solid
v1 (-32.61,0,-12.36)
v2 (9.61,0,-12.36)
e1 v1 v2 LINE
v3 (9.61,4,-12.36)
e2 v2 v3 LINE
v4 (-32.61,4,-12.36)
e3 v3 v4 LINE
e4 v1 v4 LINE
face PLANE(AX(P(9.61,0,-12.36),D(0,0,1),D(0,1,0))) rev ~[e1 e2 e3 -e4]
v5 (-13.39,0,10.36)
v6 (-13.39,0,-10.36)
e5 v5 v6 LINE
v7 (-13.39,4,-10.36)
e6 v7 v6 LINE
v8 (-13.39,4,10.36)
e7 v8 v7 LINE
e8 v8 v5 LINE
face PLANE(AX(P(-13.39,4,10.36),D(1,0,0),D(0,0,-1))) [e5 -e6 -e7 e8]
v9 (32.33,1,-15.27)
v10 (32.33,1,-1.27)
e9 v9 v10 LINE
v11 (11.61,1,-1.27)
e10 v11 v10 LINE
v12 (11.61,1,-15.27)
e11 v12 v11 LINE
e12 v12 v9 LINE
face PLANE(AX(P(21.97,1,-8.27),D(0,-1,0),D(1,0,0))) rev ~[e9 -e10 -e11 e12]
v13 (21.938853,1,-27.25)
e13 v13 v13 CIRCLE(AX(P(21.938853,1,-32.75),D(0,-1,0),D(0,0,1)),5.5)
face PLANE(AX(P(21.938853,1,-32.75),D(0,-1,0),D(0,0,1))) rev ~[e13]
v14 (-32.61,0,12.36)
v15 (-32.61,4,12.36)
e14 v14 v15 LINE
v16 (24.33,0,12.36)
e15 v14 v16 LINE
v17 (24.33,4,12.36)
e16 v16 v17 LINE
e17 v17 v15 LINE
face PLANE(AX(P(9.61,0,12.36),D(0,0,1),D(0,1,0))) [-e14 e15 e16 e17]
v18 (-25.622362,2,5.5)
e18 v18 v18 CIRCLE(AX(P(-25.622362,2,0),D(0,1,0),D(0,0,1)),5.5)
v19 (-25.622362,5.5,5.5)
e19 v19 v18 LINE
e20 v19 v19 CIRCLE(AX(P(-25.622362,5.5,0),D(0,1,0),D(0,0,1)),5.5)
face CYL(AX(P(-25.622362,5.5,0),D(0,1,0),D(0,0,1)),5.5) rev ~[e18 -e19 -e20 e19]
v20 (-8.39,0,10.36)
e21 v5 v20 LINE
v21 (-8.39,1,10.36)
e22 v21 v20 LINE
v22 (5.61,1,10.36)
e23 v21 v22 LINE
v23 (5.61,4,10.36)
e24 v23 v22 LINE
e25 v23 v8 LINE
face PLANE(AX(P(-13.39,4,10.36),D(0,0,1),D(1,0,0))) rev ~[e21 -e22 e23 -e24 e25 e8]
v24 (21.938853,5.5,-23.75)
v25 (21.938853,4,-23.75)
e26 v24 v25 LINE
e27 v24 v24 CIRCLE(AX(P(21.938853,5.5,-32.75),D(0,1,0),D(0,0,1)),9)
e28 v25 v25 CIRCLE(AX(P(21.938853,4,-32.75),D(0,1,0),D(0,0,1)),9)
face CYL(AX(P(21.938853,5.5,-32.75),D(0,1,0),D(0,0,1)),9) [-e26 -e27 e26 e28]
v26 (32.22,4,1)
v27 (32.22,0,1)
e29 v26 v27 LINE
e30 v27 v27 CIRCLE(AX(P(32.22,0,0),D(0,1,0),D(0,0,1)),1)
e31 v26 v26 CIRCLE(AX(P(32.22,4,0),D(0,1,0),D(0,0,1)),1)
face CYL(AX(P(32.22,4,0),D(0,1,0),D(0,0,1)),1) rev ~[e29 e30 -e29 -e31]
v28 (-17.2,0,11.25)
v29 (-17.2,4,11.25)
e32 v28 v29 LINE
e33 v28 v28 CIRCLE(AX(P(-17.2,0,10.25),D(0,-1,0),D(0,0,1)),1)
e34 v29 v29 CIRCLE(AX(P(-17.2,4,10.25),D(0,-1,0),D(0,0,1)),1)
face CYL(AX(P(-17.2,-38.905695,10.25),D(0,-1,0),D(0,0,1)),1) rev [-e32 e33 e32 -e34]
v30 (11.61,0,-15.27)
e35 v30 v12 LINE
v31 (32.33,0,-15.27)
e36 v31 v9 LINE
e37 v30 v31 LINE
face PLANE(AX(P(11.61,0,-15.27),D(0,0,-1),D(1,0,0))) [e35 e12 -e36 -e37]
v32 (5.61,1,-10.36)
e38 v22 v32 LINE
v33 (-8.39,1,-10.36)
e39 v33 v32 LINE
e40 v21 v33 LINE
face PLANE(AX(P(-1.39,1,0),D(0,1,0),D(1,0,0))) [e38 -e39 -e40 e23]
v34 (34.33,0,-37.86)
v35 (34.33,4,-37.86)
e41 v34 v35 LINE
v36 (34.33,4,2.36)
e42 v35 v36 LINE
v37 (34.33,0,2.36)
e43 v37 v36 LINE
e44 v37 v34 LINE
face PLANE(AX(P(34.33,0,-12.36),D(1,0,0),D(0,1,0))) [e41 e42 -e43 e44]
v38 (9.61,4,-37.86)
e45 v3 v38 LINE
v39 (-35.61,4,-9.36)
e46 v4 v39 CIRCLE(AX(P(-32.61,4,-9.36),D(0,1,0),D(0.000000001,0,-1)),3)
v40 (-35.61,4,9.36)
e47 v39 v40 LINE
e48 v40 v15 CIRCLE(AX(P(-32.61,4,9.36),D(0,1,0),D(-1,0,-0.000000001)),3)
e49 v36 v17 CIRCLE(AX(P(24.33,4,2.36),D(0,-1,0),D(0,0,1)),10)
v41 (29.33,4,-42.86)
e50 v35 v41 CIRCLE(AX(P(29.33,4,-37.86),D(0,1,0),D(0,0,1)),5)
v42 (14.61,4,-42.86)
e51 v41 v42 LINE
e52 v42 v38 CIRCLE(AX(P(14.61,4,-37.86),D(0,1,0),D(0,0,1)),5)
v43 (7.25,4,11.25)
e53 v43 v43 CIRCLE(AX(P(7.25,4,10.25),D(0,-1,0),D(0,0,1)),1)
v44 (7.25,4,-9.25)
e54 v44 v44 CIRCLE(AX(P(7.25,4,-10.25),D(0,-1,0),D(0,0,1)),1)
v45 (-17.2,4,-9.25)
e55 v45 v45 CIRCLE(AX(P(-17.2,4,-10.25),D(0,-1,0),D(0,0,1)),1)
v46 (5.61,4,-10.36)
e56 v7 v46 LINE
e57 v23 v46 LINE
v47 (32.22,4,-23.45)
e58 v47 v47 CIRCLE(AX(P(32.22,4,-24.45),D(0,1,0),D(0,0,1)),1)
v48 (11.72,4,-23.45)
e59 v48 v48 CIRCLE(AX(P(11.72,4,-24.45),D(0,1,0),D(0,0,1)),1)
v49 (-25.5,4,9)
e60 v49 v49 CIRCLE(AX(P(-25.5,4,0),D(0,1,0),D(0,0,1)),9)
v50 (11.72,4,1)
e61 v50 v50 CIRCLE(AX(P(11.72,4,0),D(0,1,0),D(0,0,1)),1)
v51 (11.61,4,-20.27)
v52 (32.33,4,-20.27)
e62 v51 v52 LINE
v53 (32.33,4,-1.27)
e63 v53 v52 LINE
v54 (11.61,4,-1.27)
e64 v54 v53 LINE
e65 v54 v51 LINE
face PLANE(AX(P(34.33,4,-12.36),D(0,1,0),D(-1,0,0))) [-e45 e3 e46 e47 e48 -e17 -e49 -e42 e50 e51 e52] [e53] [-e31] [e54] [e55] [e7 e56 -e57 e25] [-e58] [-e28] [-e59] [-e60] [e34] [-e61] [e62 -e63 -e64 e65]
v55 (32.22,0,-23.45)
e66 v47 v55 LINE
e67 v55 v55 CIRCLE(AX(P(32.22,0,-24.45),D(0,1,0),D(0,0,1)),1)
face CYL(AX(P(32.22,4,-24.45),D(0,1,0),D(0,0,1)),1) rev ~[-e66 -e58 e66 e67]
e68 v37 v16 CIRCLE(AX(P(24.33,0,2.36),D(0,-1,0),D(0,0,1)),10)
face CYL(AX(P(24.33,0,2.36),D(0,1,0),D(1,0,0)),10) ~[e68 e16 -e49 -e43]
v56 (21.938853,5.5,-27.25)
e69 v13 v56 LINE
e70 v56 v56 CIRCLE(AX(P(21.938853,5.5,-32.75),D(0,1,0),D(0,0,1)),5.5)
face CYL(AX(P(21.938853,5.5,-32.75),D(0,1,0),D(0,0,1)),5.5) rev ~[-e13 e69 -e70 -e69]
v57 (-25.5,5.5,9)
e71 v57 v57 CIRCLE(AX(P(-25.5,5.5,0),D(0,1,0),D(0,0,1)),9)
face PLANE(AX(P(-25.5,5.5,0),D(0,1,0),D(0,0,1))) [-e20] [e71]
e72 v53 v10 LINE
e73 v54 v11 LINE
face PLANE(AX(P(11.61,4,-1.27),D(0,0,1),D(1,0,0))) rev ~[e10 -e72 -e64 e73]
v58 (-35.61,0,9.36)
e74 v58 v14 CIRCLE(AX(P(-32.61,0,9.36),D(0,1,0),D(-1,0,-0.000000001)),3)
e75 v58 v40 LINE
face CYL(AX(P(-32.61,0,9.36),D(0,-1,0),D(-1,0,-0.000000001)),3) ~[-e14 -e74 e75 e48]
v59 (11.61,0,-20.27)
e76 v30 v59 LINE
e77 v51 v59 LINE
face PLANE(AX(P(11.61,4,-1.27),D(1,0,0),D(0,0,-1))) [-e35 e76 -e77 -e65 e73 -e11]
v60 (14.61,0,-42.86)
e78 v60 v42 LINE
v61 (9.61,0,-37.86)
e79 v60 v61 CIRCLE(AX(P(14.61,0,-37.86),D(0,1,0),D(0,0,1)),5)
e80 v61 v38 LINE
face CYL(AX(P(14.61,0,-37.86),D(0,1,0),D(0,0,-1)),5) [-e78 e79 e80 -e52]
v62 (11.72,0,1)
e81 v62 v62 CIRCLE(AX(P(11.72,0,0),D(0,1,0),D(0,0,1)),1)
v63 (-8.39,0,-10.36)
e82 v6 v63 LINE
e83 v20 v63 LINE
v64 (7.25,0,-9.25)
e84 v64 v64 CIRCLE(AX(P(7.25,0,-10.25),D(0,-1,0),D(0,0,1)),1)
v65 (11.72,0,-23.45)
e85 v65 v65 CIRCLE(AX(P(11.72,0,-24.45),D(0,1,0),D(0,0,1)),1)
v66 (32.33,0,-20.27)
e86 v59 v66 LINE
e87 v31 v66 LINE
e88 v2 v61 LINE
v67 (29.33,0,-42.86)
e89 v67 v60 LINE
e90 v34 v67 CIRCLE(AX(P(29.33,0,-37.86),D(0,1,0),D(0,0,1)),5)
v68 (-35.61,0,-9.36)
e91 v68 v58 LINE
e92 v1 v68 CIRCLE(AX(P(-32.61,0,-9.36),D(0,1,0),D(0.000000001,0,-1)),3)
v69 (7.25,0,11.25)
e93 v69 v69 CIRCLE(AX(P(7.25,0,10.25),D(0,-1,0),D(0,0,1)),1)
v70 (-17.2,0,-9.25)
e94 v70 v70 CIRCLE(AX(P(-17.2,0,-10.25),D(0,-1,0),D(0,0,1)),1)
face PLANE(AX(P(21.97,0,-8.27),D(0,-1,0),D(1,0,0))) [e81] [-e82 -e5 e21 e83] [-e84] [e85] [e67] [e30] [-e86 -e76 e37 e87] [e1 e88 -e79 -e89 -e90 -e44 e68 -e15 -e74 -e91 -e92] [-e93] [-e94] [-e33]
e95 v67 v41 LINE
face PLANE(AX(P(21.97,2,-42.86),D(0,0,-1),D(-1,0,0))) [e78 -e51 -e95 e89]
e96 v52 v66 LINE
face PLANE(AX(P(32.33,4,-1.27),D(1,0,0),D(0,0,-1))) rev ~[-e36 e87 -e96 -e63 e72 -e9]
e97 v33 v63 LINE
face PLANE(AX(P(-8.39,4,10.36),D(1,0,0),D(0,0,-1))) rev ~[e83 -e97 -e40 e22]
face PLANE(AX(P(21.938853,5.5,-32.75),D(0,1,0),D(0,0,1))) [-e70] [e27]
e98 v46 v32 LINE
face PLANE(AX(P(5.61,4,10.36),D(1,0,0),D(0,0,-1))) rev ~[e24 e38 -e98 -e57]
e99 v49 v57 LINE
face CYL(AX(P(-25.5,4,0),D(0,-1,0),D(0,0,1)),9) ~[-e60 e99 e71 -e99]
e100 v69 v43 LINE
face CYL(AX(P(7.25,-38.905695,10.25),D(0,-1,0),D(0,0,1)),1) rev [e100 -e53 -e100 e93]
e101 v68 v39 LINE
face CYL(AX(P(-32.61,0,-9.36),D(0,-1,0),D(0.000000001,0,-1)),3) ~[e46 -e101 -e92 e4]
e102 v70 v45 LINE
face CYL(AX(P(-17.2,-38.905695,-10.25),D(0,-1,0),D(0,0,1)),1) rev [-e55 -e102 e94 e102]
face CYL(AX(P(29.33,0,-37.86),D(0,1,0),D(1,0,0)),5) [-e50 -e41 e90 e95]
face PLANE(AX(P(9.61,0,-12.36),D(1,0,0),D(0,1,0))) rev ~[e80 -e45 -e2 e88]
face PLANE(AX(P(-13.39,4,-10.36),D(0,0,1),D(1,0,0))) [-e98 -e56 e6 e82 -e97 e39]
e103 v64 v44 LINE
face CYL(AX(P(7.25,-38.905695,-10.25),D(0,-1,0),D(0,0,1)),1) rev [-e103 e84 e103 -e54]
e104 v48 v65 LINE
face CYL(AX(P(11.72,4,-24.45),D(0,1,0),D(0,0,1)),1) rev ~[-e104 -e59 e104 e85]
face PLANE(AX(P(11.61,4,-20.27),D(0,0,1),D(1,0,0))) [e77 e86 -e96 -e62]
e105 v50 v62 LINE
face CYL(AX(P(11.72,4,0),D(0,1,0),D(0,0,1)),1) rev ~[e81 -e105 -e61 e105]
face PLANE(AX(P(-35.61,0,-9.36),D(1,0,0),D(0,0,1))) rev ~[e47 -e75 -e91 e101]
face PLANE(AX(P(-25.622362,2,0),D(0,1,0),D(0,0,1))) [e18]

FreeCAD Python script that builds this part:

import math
import FreeCAD as App
import Part
import Sketcher
Q = App.Units.Quantity


def edges_at(feature, points):
    """Names of the edges that pass closest to the given points."""
    edges = feature.Shape.Edges
    near = lambda p: min(range(len(edges)), key=lambda i: edges[i].distToShape(Part.Vertex(*p))[0])
    return sorted({f"Edge{near(p) + 1}" for p in points})


def add_polygon(sketch, points):
    """Adds a closed chain of lines whose ends are joined by coincident constraints."""
    first, n = sketch.GeometryCount, len(points)
    for a, b in zip(points, points[1:] + points[:1]):
        sketch.addGeometry(Part.LineSegment(App.Vector(*a, 0), App.Vector(*b, 0)), False)
    for i in range(n):
        sketch.addConstraint(Sketcher.Constraint("Coincident", first + i, 2, first + (i + 1) % n, 1))

doc = App.newDocument("Part")
body = doc.addObject("PartDesign::Body", "Body")

sketch1 = doc.addObject("Sketcher::SketchObject", "Sketch")
body.addObject(sketch1)
sketch1.AttachmentSupport = (doc.XZ_Plane, [""])
sketch1.MapMode = "FlatFace"
sketch1.addGeometry([
    Part.LineSegment(App.Vector(9.6, 12.4, 0), App.Vector(9.6, -12.4, 0)),
    Part.LineSegment(App.Vector(9.6, -12.4, 0), App.Vector(-32.6, -12.4, 0)),
    Part.ArcOfCircle(Part.Circle(App.Vector(-32.6, -9.4, 0), App.Vector(0, 0, 1), 3), math.radians(180), math.radians(270)),
    Part.LineSegment(App.Vector(-35.6, -9.4, 0), App.Vector(-35.6, 9.4, 0)),
    Part.ArcOfCircle(Part.Circle(App.Vector(-32.6, 9.4, 0), App.Vector(0, 0, 1), 3), math.radians(90), math.radians(180)),
    Part.LineSegment(App.Vector(-32.6, 12.4, 0), App.Vector(9.6, 12.4, 0)),
], False)
sketch1.addConstraint([
    Sketcher.Constraint("Coincident", 0, 2, 1, 1),
    Sketcher.Constraint("Tangent", 1, 2, 2, 2),
    Sketcher.Constraint("Tangent", 2, 1, 3, 1),
    Sketcher.Constraint("Tangent", 3, 2, 4, 2),
    Sketcher.Constraint("Tangent", 4, 1, 5, 1),
    Sketcher.Constraint("Coincident", 5, 2, 0, 1),
    Sketcher.Constraint("Vertical", 0),
    Sketcher.Constraint("Horizontal", 1),
    Sketcher.Constraint("Vertical", 3),
    Sketcher.Constraint("Horizontal", 5),
    Sketcher.Constraint("Equal", 2, 4),
    Sketcher.Constraint("Radius", 2, Q("3 mm")),
    Sketcher.Constraint("DistanceX", 1, 2, 1, 1, Q("42.22 mm")),
    Sketcher.Constraint("DistanceY", 0, 2, 0, 1, Q("24.72 mm")),
    Sketcher.Constraint("DistanceX", 2, 3, -1, 1, Q("32.61 mm")),
    Sketcher.Constraint("DistanceY", 2, 3, -1, 1, Q("9.36 mm")),
])
pad1 = doc.addObject("PartDesign::Pad", "Pad")
body.addObject(pad1)
pad1.Profile = sketch1
pad1.Length = 4
pad1.Reversed = True

sketch2 = doc.addObject("Sketcher::SketchObject", "Sketch001")
body.addObject(sketch2)
sketch2.AttachmentSupport = (doc.XZ_Plane, [""])
sketch2.MapMode = "FlatFace"
sketch2.addGeometry([
    Part.Circle(App.Vector(7.2, 10.2, 0), App.Vector(0, 0, 1), 1),
    Part.Circle(App.Vector(7.2, -10.2, 0), App.Vector(0, 0, 1), 1),
    Part.Circle(App.Vector(-17.2, 10.2, 0), App.Vector(0, 0, 1), 1),
    Part.Circle(App.Vector(-17.2, -10.2, 0), App.Vector(0, 0, 1), 1),
], False)
sketch2.addConstraint([
    Sketcher.Constraint("Equal", 0, 1),
    Sketcher.Constraint("Equal", 1, 2),
    Sketcher.Constraint("Equal", 2, 3),
    Sketcher.Constraint("Symmetric", 0, 3, 1, 3, -1),
    Sketcher.Constraint("Symmetric", 2, 3, 3, 3, -1),
    Sketcher.Constraint("Horizontal", 0, 3, 2, 3),
    Sketcher.Constraint("Diameter", 0, Q("2 mm")),
    Sketcher.Constraint("DistanceX", 2, 3, -1, 1, Q("17.2 mm")),
    Sketcher.Constraint("DistanceY", 1, 3, 0, 3, Q("20.5 mm")),
    Sketcher.Constraint("DistanceX", -1, 1, 0, 3, Q("7.25 mm")),
])
pocket1 = doc.addObject("PartDesign::Pocket", "Pocket")
body.addObject(pocket1)
pocket1.Profile = sketch2
pocket1.Type = "ThroughAll"
pocket1.Midplane = True

sketch3 = doc.addObject("Sketcher::SketchObject", "Sketch002")
body.addObject(sketch3)
sketch3.AttachmentSupport = (doc.XZ_Plane, [""])
sketch3.MapMode = "FlatFace"
sketch3.AttachmentOffset = App.Placement(App.Vector(0, 0, -4), App.Rotation())
add_polygon(sketch3, [(-8, -10), (-8, 10), (6, 10), (6, -10)])
sketch3.addConstraint([
    Sketcher.Constraint("Vertical", 0),
    Sketcher.Constraint("Horizontal", 1),
    Sketcher.Constraint("Vertical", 2),
    Sketcher.Constraint("Horizontal", 3),
    Sketcher.Constraint("DistanceX", 1, 1, 1, 2, Q("14 mm")),
    Sketcher.Constraint("DistanceY", 0, 1, 0, 2, Q("20.72 mm")),
    Sketcher.Constraint("DistanceX", 0, 2, -1, 1, Q("8.39 mm")),
    Sketcher.Constraint("DistanceY", -1, 1, 0, 2, Q("10.36 mm")),
])
pocket2 = doc.addObject("PartDesign::Pocket", "Pocket001")
body.addObject(pocket2)
pocket2.Profile = sketch3
pocket2.Length = 3
pocket2.Reversed = True

sketch4 = doc.addObject("Sketcher::SketchObject", "Sketch003")
body.addObject(sketch4)
sketch4.AttachmentSupport = (doc.XZ_Plane, [""])
sketch4.MapMode = "FlatFace"
sketch4.AttachmentOffset = App.Placement(App.Vector(0, 0, -4), App.Rotation())
add_polygon(sketch4, [(-13, -10), (-13, 10), (-8, 10), (-8, -10)])
sketch4.addConstraint([
    Sketcher.Constraint("Vertical", 0),
    Sketcher.Constraint("Horizontal", 1),
    Sketcher.Constraint("Vertical", 2),
    Sketcher.Constraint("Horizontal", 3),
    Sketcher.Constraint("DistanceX", 1, 1, 1, 2, Q("5 mm")),
    Sketcher.Constraint("DistanceY", 0, 1, 0, 2, Q("20.72 mm")),
    Sketcher.Constraint("DistanceX", 0, 2, -1, 1, Q("13.39 mm")),
    Sketcher.Constraint("DistanceY", -1, 1, 0, 2, Q("10.36 mm")),
])
pocket3 = doc.addObject("PartDesign::Pocket", "Pocket002")
body.addObject(pocket3)
pocket3.Profile = sketch4
pocket3.Length = 4
pocket3.Reversed = True

sketch5 = doc.addObject("Sketcher::SketchObject", "Sketch004")
body.addObject(sketch5)
sketch5.AttachmentSupport = (doc.XZ_Plane, [""])
sketch5.MapMode = "FlatFace"
sketch5.AttachmentOffset = App.Placement(App.Vector(0, 0, -4), App.Rotation())
sketch5.addGeometry(Part.Circle(App.Vector(-26, 0, 0), App.Vector(0, 0, 1), 9), False)
sketch5.addConstraint([
    Sketcher.Constraint("PointOnObject", 0, 3, -1),
    Sketcher.Constraint("Diameter", 0, Q("18 mm")),
    Sketcher.Constraint("DistanceX", 0, 3, -1, 1, Q("25.5 mm")),
])
pad2 = doc.addObject("PartDesign::Pad", "Pad001")
body.addObject(pad2)
pad2.Profile = sketch5
pad2.Length = 1.5
pad2.Reversed = True

sketch6 = doc.addObject("Sketcher::SketchObject", "Sketch005")
body.addObject(sketch6)
sketch6.AttachmentSupport = (doc.XZ_Plane, [""])
sketch6.MapMode = "FlatFace"
sketch6.AttachmentOffset = App.Placement(App.Vector(0, 0, -5.5), App.Rotation())
sketch6.addGeometry(Part.Circle(App.Vector(-26, 0, 0), App.Vector(0, 0, 1), 6), False)
sketch6.addConstraint([
    Sketcher.Constraint("PointOnObject", 0, 3, -1),
    Sketcher.Constraint("Diameter", 0, Q("11 mm")),
    Sketcher.Constraint("DistanceX", 0, 3, -1, 1, Q("25.622362 mm")),
])
pocket4 = doc.addObject("PartDesign::Pocket", "Pocket003")
body.addObject(pocket4)
pocket4.Profile = sketch6
pocket4.Length = 3.5
pocket4.Reversed = True

sketch7 = doc.addObject("Sketcher::SketchObject", "Sketch006")
body.addObject(sketch7)
sketch7.AttachmentSupport = (doc.YZ_Plane, [""])
sketch7.MapMode = "FlatFace"
sketch7.AttachmentOffset = App.Placement(App.Vector(0, 0, 9.61), App.Rotation())
add_polygon(sketch7, [(4, 12.4), (0, 12.4), (0, -12.4), (4, -12.4)])
sketch7.addConstraint([
    Sketcher.Constraint("Horizontal", 0),
    Sketcher.Constraint("Vertical", 1),
    Sketcher.Constraint("Horizontal", 2),
    Sketcher.Constraint("Vertical", 3),
    Sketcher.Constraint("Symmetric", 0, 2, 1, 2, -1, 1),
    Sketcher.Constraint("DistanceX", 0, 2, 0, 1, Q("4 mm")),
    Sketcher.Constraint("DistanceY", 1, 2, 1, 1, Q("24.72 mm")),
])
pad3 = doc.addObject("PartDesign::Pad", "Pad002")
body.addObject(pad3)
pad3.Profile = sketch7
pad3.Length = 24.72

sketch8 = doc.addObject("Sketcher::SketchObject", "Sketch007")
body.addObject(sketch8)
sketch8.AttachmentSupport = (doc.XY_Plane, [""])
sketch8.MapMode = "FlatFace"
sketch8.AttachmentOffset = App.Placement(App.Vector(0, 0, -12.36), App.Rotation())
add_polygon(sketch8, [(34.3, 4), (34.3, 0), (9.6, 0), (9.6, 4)])
sketch8.addConstraint([
    Sketcher.Constraint("Vertical", 0),
    Sketcher.Constraint("Horizontal", 1),
    Sketcher.Constraint("Vertical", 2),
    Sketcher.Constraint("Horizontal", 3),
    Sketcher.Constraint("PointOnObject", 0, 2, -1),
    Sketcher.Constraint("DistanceY", 0, 2, 0, 1, Q("4 mm")),
    Sketcher.Constraint("DistanceX", 1, 2, 1, 1, Q("24.72 mm")),
    Sketcher.Constraint("DistanceX", -1, 1, 0, 2, Q("34.33 mm")),
])
pad4 = doc.addObject("PartDesign::Pad", "Pad003")
body.addObject(pad4)
pad4.Profile = sketch8
pad4.Length = 30.5
pad4.Reversed = True

sketch9 = doc.addObject("Sketcher::SketchObject", "Sketch008")
body.addObject(sketch9)
sketch9.AttachmentSupport = (doc.XZ_Plane, [""])
sketch9.MapMode = "FlatFace"
sketch9.AttachmentOffset = App.Placement(App.Vector(0, 0, -4), App.Rotation())
sketch9.addGeometry([
    Part.Circle(App.Vector(11.7, -24.4, 0), App.Vector(0, 0, 1), 1),
    Part.Circle(App.Vector(32.2, -24.4, 0), App.Vector(0, 0, 1), 1),
    Part.Circle(App.Vector(11.7, 0, 0), App.Vector(0, 0, 1), 1),
    Part.Circle(App.Vector(32.2, 0, 0), App.Vector(0, 0, 1), 1),
    Part.Circle(App.Vector(21.9, -32.8, 0), App.Vector(0, 0, 1), 5.5),
], False)
sketch9.addConstraint([
    Sketcher.Constraint("Equal", 0, 1),
    Sketcher.Constraint("Equal", 1, 2),
    Sketcher.Constraint("Equal", 2, 3),
    Sketcher.Constraint("PointOnObject", 2, 3, -1),
    Sketcher.Constraint("PointOnObject", 3, 3, -1),
    Sketcher.Constraint("Horizontal", 0, 3, 1, 3),
    Sketcher.Constraint("Vertical", 0, 3, 2, 3),
    Sketcher.Constraint("Vertical", 1, 3, 3, 3),
    Sketcher.Constraint("Diameter", 0, Q("2 mm")),
    Sketcher.Constraint("Diameter", 4, Q("11 mm")),
    Sketcher.Constraint("DistanceX", 0, 3, 1, 3, Q("20.5 mm")),
    Sketcher.Constraint("DistanceY", 4, 3, 0, 3, Q("8.3 mm")),
    Sketcher.Constraint("DistanceX", -1, 1, 0, 3, Q("11.72 mm")),
    Sketcher.Constraint("DistanceY", 0, 3, -1, 1, Q("24.45 mm")),
    Sketcher.Constraint("DistanceX", -1, 1, 4, 3, Q("21.938853 mm")),
])
pocket5 = doc.addObject("PartDesign::Pocket", "Pocket004")
body.addObject(pocket5)
pocket5.Profile = sketch9
pocket5.Length = 4
pocket5.Reversed = True

sketch10 = doc.addObject("Sketcher::SketchObject", "Sketch009")
body.addObject(sketch10)
sketch10.AttachmentSupport = (doc.XZ_Plane, [""])
sketch10.MapMode = "FlatFace"
sketch10.AttachmentOffset = App.Placement(App.Vector(0, 0, -5.5), App.Rotation())
sketch10.addGeometry([
    Part.Circle(App.Vector(22, -33, 0), App.Vector(0, 0, 1), 9),
    Part.Circle(App.Vector(22, -33, 0), App.Vector(0, 0, 1), 6),
], False)
sketch10.addConstraint([
    Sketcher.Constraint("Coincident", 1, 3, 0, 3),
    Sketcher.Constraint("Diameter", 0, Q("18 mm")),
    Sketcher.Constraint("Diameter", 1, Q("11 mm")),
    Sketcher.Constraint("DistanceY", 0, 3, -1, 1, Q("32.75 mm")),
    Sketcher.Constraint("DistanceX", -1, 1, 0, 3, Q("21.938853 mm")),
])
pad5 = doc.addObject("PartDesign::Pad", "Pad004")
body.addObject(pad5)
pad5.Profile = sketch10
pad5.Length = 1.5

sketch11 = doc.addObject("Sketcher::SketchObject", "Sketch010")
body.addObject(sketch11)
sketch11.AttachmentSupport = (doc.XZ_Plane, [""])
sketch11.MapMode = "FlatFace"
sketch11.AttachmentOffset = App.Placement(App.Vector(0, 0, -4), App.Rotation())
add_polygon(sketch11, [(12, -20), (12, -1), (32, -1), (32, -20)])
sketch11.addConstraint([
    Sketcher.Constraint("Vertical", 0),
    Sketcher.Constraint("Horizontal", 1),
    Sketcher.Constraint("Vertical", 2),
    Sketcher.Constraint("Horizontal", 3),
    Sketcher.Constraint("DistanceY", 0, 1, 0, 2, Q("19 mm")),
    Sketcher.Constraint("DistanceX", 1, 1, 1, 2, Q("20.72 mm")),
    Sketcher.Constraint("DistanceX", -1, 1, 0, 2, Q("11.61 mm")),
    Sketcher.Constraint("DistanceY", 0, 2, -1, 1, Q("1.27 mm")),
])
pocket6 = doc.addObject("PartDesign::Pocket", "Pocket005")
body.addObject(pocket6)
pocket6.Profile = sketch11
pocket6.Length = 4
pocket6.Reversed = True

sketch12 = doc.addObject("Sketcher::SketchObject", "Sketch011")
body.addObject(sketch12)
sketch12.AttachmentSupport = (doc.XZ_Plane, [""])
sketch12.MapMode = "FlatFace"
add_polygon(sketch12, [(12, -1), (12, -15), (32, -15), (32, -1)])
sketch12.addConstraint([
    Sketcher.Constraint("Vertical", 0),
    Sketcher.Constraint("Horizontal", 1),
    Sketcher.Constraint("Vertical", 2),
    Sketcher.Constraint("Horizontal", 3),
    Sketcher.Constraint("DistanceY", 0, 2, 0, 1, Q("14 mm")),
    Sketcher.Constraint("DistanceX", 1, 1, 1, 2, Q("20.72 mm")),
    Sketcher.Constraint("DistanceX", -1, 1, 0, 2, Q("11.61 mm")),
    Sketcher.Constraint("DistanceY", 0, 2, -1, 1, Q("15.27 mm")),
])
pad6 = doc.addObject("PartDesign::Pad", "Pad005")
body.addObject(pad6)
pad6.Profile = sketch12
pad6.Length = 1
pad6.Reversed = True

sketch13 = doc.addObject("Sketcher::SketchObject", "Sketch012")
body.addObject(sketch13)
sketch13.AttachmentSupport = (doc.XZ_Plane, [""])
sketch13.MapMode = "FlatFace"
sketch13.AttachmentOffset = App.Placement(App.Vector(0, 0, -1), App.Rotation())
sketch13.addGeometry(Part.Circle(App.Vector(22, -33, 0), App.Vector(0, 0, 1), 6), False)
sketch13.addConstraint([
    Sketcher.Constraint("Diameter", 0, Q("11 mm")),
    Sketcher.Constraint("DistanceY", 0, 3, -1, 1, Q("32.75 mm")),
    Sketcher.Constraint("DistanceX", -1, 1, 0, 3, Q("21.938853 mm")),
])
pad7 = doc.addObject("PartDesign::Pad", "Pad006")
body.addObject(pad7)
pad7.Profile = sketch13
pad7.Length = 1
doc.recompute()

fillet = doc.addObject("PartDesign::Fillet", "Fillet")
body.addObject(fillet)
fillet.Base = (pad7, edges_at(pad7, [(34.33, 2, -42.86)]))
fillet.Radius = 5
doc.recompute()

fillet2 = doc.addObject("PartDesign::Fillet", "Fillet001")
body.addObject(fillet2)
fillet2.Base = (fillet, edges_at(fillet, [(9.61, 2, -42.86)]))
fillet2.Radius = 5
doc.recompute()

fillet3 = doc.addObject("PartDesign::Fillet", "Fillet002")
body.addObject(fillet3)
fillet3.Base = (fillet2, edges_at(fillet2, [(34.33, 2, 12.36)]))
fillet3.Radius = 10

doc.recompute()
